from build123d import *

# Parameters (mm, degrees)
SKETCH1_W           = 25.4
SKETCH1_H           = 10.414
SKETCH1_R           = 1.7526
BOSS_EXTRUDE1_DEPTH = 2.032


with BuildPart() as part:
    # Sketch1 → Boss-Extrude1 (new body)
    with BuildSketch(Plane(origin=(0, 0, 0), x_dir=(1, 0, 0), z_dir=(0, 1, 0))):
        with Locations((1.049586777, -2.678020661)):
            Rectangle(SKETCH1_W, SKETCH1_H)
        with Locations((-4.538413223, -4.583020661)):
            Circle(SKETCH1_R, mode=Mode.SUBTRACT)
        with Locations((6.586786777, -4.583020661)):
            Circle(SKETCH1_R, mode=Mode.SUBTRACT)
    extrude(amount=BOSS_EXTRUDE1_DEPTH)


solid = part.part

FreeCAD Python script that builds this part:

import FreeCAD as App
import Part
import Sketcher
from FreeCAD import Vector
Q = App.Units.Quantity


def add_polygon(sketch, points):
    """Adds a closed chain of lines whose ends are joined by coincident constraints."""
    first, n = sketch.GeometryCount, len(points)
    for a, b in zip(points, points[1:] + points[:1]):
        sketch.addGeometry(Part.LineSegment(App.Vector(*a, 0), App.Vector(*b, 0)), False)
    for i in range(n):
        sketch.addConstraint(Sketcher.Constraint("Coincident", first + i, 2, first + (i + 1) % n, 1))

doc = App.newDocument("Part")
params = doc.addObject("Spreadsheet::Sheet", "Params")
for row, (alias, value) in enumerate([
    ("sketch1_width", "1 in"),
    ("sketch1_diameter", "0.138 in"),
    ("sketch1_height", "0.41 in"),
    ("pad1_length", "0.08 in"),
], start=1):
    params.set(f"A{row}", alias)
    params.set(f"B{row}", "=" + value)
    params.setAlias(f"B{row}", alias)

body = doc.addObject("PartDesign::Body", "Body")

# Sketch on XZ plane
sketch1 = body.newObject("Sketcher::SketchObject", "Sketch")
sketch1.AttachmentSupport = (doc.getObject("XZ_Plane"), [""])
sketch1.MapMode = "FlatFace"
add_polygon(sketch1, [(-11.7, -2.5), (-11.7, 7.9), (13.7, 7.9), (13.7, -2.5)])  # lines 0-3
sketch1.addGeometry(Part.Circle(Vector(-4.5, 4.6, 0), Vector(0, 0, 1), 1.8), False)  # 4
sketch1.addGeometry(Part.Circle(Vector(6.6, 4.6, 0), Vector(0, 0, 1), 1.8), False)  # 5
sketch1.addConstraint(Sketcher.Constraint("Vertical", 0))
sketch1.addConstraint(Sketcher.Constraint("Horizontal", 1))
sketch1.addConstraint(Sketcher.Constraint("Vertical", 2))
sketch1.addConstraint(Sketcher.Constraint("Horizontal", 3))
sketch1.addConstraint(Sketcher.Constraint("Equal", 4, 5))
sketch1.addConstraint(Sketcher.Constraint("Horizontal", 4, 3, 5, 3))
sketch1.addConstraint(Sketcher.Constraint("DistanceX", 1, 1, 1, 2, Q("1 in")))
sketch1.addConstraint(Sketcher.Constraint("Diameter", 4, Q("0.138 in")))
sketch1.addConstraint(Sketcher.Constraint("DistanceY", 0, 1, 0, 2, Q("0.41 in")))
sketch1.addConstraint(Sketcher.Constraint("DistanceX", 0, 2, 4, 3, Q("0.28 in")))
sketch1.addConstraint(Sketcher.Constraint("DistanceY", 4, 3, 0, 2, Q("0.13 in")))
sketch1.addConstraint(Sketcher.Constraint("DistanceX", 4, 3, 5, 3, Q("0.438 in")))
sketch1.addConstraint(Sketcher.Constraint("DistanceY", -1, 1, 4, 3, 4.583021))
sketch1.addConstraint(Sketcher.Constraint("DistanceX", 4, 3, -1, 1, 4.538413))
sketch1.setExpression("Constraints[10]", "Params.sketch1_width")
sketch1.setExpression("Constraints[11]", "Params.sketch1_diameter")
sketch1.setExpression("Constraints[12]", "Params.sketch1_height")
pad1 = body.newObject("PartDesign::Pad", "Pad")
pad1.Profile = sketch1
pad1.setExpression("Length", "Params.pad1_length")
pad1.Reversed = True

doc.recompute()
